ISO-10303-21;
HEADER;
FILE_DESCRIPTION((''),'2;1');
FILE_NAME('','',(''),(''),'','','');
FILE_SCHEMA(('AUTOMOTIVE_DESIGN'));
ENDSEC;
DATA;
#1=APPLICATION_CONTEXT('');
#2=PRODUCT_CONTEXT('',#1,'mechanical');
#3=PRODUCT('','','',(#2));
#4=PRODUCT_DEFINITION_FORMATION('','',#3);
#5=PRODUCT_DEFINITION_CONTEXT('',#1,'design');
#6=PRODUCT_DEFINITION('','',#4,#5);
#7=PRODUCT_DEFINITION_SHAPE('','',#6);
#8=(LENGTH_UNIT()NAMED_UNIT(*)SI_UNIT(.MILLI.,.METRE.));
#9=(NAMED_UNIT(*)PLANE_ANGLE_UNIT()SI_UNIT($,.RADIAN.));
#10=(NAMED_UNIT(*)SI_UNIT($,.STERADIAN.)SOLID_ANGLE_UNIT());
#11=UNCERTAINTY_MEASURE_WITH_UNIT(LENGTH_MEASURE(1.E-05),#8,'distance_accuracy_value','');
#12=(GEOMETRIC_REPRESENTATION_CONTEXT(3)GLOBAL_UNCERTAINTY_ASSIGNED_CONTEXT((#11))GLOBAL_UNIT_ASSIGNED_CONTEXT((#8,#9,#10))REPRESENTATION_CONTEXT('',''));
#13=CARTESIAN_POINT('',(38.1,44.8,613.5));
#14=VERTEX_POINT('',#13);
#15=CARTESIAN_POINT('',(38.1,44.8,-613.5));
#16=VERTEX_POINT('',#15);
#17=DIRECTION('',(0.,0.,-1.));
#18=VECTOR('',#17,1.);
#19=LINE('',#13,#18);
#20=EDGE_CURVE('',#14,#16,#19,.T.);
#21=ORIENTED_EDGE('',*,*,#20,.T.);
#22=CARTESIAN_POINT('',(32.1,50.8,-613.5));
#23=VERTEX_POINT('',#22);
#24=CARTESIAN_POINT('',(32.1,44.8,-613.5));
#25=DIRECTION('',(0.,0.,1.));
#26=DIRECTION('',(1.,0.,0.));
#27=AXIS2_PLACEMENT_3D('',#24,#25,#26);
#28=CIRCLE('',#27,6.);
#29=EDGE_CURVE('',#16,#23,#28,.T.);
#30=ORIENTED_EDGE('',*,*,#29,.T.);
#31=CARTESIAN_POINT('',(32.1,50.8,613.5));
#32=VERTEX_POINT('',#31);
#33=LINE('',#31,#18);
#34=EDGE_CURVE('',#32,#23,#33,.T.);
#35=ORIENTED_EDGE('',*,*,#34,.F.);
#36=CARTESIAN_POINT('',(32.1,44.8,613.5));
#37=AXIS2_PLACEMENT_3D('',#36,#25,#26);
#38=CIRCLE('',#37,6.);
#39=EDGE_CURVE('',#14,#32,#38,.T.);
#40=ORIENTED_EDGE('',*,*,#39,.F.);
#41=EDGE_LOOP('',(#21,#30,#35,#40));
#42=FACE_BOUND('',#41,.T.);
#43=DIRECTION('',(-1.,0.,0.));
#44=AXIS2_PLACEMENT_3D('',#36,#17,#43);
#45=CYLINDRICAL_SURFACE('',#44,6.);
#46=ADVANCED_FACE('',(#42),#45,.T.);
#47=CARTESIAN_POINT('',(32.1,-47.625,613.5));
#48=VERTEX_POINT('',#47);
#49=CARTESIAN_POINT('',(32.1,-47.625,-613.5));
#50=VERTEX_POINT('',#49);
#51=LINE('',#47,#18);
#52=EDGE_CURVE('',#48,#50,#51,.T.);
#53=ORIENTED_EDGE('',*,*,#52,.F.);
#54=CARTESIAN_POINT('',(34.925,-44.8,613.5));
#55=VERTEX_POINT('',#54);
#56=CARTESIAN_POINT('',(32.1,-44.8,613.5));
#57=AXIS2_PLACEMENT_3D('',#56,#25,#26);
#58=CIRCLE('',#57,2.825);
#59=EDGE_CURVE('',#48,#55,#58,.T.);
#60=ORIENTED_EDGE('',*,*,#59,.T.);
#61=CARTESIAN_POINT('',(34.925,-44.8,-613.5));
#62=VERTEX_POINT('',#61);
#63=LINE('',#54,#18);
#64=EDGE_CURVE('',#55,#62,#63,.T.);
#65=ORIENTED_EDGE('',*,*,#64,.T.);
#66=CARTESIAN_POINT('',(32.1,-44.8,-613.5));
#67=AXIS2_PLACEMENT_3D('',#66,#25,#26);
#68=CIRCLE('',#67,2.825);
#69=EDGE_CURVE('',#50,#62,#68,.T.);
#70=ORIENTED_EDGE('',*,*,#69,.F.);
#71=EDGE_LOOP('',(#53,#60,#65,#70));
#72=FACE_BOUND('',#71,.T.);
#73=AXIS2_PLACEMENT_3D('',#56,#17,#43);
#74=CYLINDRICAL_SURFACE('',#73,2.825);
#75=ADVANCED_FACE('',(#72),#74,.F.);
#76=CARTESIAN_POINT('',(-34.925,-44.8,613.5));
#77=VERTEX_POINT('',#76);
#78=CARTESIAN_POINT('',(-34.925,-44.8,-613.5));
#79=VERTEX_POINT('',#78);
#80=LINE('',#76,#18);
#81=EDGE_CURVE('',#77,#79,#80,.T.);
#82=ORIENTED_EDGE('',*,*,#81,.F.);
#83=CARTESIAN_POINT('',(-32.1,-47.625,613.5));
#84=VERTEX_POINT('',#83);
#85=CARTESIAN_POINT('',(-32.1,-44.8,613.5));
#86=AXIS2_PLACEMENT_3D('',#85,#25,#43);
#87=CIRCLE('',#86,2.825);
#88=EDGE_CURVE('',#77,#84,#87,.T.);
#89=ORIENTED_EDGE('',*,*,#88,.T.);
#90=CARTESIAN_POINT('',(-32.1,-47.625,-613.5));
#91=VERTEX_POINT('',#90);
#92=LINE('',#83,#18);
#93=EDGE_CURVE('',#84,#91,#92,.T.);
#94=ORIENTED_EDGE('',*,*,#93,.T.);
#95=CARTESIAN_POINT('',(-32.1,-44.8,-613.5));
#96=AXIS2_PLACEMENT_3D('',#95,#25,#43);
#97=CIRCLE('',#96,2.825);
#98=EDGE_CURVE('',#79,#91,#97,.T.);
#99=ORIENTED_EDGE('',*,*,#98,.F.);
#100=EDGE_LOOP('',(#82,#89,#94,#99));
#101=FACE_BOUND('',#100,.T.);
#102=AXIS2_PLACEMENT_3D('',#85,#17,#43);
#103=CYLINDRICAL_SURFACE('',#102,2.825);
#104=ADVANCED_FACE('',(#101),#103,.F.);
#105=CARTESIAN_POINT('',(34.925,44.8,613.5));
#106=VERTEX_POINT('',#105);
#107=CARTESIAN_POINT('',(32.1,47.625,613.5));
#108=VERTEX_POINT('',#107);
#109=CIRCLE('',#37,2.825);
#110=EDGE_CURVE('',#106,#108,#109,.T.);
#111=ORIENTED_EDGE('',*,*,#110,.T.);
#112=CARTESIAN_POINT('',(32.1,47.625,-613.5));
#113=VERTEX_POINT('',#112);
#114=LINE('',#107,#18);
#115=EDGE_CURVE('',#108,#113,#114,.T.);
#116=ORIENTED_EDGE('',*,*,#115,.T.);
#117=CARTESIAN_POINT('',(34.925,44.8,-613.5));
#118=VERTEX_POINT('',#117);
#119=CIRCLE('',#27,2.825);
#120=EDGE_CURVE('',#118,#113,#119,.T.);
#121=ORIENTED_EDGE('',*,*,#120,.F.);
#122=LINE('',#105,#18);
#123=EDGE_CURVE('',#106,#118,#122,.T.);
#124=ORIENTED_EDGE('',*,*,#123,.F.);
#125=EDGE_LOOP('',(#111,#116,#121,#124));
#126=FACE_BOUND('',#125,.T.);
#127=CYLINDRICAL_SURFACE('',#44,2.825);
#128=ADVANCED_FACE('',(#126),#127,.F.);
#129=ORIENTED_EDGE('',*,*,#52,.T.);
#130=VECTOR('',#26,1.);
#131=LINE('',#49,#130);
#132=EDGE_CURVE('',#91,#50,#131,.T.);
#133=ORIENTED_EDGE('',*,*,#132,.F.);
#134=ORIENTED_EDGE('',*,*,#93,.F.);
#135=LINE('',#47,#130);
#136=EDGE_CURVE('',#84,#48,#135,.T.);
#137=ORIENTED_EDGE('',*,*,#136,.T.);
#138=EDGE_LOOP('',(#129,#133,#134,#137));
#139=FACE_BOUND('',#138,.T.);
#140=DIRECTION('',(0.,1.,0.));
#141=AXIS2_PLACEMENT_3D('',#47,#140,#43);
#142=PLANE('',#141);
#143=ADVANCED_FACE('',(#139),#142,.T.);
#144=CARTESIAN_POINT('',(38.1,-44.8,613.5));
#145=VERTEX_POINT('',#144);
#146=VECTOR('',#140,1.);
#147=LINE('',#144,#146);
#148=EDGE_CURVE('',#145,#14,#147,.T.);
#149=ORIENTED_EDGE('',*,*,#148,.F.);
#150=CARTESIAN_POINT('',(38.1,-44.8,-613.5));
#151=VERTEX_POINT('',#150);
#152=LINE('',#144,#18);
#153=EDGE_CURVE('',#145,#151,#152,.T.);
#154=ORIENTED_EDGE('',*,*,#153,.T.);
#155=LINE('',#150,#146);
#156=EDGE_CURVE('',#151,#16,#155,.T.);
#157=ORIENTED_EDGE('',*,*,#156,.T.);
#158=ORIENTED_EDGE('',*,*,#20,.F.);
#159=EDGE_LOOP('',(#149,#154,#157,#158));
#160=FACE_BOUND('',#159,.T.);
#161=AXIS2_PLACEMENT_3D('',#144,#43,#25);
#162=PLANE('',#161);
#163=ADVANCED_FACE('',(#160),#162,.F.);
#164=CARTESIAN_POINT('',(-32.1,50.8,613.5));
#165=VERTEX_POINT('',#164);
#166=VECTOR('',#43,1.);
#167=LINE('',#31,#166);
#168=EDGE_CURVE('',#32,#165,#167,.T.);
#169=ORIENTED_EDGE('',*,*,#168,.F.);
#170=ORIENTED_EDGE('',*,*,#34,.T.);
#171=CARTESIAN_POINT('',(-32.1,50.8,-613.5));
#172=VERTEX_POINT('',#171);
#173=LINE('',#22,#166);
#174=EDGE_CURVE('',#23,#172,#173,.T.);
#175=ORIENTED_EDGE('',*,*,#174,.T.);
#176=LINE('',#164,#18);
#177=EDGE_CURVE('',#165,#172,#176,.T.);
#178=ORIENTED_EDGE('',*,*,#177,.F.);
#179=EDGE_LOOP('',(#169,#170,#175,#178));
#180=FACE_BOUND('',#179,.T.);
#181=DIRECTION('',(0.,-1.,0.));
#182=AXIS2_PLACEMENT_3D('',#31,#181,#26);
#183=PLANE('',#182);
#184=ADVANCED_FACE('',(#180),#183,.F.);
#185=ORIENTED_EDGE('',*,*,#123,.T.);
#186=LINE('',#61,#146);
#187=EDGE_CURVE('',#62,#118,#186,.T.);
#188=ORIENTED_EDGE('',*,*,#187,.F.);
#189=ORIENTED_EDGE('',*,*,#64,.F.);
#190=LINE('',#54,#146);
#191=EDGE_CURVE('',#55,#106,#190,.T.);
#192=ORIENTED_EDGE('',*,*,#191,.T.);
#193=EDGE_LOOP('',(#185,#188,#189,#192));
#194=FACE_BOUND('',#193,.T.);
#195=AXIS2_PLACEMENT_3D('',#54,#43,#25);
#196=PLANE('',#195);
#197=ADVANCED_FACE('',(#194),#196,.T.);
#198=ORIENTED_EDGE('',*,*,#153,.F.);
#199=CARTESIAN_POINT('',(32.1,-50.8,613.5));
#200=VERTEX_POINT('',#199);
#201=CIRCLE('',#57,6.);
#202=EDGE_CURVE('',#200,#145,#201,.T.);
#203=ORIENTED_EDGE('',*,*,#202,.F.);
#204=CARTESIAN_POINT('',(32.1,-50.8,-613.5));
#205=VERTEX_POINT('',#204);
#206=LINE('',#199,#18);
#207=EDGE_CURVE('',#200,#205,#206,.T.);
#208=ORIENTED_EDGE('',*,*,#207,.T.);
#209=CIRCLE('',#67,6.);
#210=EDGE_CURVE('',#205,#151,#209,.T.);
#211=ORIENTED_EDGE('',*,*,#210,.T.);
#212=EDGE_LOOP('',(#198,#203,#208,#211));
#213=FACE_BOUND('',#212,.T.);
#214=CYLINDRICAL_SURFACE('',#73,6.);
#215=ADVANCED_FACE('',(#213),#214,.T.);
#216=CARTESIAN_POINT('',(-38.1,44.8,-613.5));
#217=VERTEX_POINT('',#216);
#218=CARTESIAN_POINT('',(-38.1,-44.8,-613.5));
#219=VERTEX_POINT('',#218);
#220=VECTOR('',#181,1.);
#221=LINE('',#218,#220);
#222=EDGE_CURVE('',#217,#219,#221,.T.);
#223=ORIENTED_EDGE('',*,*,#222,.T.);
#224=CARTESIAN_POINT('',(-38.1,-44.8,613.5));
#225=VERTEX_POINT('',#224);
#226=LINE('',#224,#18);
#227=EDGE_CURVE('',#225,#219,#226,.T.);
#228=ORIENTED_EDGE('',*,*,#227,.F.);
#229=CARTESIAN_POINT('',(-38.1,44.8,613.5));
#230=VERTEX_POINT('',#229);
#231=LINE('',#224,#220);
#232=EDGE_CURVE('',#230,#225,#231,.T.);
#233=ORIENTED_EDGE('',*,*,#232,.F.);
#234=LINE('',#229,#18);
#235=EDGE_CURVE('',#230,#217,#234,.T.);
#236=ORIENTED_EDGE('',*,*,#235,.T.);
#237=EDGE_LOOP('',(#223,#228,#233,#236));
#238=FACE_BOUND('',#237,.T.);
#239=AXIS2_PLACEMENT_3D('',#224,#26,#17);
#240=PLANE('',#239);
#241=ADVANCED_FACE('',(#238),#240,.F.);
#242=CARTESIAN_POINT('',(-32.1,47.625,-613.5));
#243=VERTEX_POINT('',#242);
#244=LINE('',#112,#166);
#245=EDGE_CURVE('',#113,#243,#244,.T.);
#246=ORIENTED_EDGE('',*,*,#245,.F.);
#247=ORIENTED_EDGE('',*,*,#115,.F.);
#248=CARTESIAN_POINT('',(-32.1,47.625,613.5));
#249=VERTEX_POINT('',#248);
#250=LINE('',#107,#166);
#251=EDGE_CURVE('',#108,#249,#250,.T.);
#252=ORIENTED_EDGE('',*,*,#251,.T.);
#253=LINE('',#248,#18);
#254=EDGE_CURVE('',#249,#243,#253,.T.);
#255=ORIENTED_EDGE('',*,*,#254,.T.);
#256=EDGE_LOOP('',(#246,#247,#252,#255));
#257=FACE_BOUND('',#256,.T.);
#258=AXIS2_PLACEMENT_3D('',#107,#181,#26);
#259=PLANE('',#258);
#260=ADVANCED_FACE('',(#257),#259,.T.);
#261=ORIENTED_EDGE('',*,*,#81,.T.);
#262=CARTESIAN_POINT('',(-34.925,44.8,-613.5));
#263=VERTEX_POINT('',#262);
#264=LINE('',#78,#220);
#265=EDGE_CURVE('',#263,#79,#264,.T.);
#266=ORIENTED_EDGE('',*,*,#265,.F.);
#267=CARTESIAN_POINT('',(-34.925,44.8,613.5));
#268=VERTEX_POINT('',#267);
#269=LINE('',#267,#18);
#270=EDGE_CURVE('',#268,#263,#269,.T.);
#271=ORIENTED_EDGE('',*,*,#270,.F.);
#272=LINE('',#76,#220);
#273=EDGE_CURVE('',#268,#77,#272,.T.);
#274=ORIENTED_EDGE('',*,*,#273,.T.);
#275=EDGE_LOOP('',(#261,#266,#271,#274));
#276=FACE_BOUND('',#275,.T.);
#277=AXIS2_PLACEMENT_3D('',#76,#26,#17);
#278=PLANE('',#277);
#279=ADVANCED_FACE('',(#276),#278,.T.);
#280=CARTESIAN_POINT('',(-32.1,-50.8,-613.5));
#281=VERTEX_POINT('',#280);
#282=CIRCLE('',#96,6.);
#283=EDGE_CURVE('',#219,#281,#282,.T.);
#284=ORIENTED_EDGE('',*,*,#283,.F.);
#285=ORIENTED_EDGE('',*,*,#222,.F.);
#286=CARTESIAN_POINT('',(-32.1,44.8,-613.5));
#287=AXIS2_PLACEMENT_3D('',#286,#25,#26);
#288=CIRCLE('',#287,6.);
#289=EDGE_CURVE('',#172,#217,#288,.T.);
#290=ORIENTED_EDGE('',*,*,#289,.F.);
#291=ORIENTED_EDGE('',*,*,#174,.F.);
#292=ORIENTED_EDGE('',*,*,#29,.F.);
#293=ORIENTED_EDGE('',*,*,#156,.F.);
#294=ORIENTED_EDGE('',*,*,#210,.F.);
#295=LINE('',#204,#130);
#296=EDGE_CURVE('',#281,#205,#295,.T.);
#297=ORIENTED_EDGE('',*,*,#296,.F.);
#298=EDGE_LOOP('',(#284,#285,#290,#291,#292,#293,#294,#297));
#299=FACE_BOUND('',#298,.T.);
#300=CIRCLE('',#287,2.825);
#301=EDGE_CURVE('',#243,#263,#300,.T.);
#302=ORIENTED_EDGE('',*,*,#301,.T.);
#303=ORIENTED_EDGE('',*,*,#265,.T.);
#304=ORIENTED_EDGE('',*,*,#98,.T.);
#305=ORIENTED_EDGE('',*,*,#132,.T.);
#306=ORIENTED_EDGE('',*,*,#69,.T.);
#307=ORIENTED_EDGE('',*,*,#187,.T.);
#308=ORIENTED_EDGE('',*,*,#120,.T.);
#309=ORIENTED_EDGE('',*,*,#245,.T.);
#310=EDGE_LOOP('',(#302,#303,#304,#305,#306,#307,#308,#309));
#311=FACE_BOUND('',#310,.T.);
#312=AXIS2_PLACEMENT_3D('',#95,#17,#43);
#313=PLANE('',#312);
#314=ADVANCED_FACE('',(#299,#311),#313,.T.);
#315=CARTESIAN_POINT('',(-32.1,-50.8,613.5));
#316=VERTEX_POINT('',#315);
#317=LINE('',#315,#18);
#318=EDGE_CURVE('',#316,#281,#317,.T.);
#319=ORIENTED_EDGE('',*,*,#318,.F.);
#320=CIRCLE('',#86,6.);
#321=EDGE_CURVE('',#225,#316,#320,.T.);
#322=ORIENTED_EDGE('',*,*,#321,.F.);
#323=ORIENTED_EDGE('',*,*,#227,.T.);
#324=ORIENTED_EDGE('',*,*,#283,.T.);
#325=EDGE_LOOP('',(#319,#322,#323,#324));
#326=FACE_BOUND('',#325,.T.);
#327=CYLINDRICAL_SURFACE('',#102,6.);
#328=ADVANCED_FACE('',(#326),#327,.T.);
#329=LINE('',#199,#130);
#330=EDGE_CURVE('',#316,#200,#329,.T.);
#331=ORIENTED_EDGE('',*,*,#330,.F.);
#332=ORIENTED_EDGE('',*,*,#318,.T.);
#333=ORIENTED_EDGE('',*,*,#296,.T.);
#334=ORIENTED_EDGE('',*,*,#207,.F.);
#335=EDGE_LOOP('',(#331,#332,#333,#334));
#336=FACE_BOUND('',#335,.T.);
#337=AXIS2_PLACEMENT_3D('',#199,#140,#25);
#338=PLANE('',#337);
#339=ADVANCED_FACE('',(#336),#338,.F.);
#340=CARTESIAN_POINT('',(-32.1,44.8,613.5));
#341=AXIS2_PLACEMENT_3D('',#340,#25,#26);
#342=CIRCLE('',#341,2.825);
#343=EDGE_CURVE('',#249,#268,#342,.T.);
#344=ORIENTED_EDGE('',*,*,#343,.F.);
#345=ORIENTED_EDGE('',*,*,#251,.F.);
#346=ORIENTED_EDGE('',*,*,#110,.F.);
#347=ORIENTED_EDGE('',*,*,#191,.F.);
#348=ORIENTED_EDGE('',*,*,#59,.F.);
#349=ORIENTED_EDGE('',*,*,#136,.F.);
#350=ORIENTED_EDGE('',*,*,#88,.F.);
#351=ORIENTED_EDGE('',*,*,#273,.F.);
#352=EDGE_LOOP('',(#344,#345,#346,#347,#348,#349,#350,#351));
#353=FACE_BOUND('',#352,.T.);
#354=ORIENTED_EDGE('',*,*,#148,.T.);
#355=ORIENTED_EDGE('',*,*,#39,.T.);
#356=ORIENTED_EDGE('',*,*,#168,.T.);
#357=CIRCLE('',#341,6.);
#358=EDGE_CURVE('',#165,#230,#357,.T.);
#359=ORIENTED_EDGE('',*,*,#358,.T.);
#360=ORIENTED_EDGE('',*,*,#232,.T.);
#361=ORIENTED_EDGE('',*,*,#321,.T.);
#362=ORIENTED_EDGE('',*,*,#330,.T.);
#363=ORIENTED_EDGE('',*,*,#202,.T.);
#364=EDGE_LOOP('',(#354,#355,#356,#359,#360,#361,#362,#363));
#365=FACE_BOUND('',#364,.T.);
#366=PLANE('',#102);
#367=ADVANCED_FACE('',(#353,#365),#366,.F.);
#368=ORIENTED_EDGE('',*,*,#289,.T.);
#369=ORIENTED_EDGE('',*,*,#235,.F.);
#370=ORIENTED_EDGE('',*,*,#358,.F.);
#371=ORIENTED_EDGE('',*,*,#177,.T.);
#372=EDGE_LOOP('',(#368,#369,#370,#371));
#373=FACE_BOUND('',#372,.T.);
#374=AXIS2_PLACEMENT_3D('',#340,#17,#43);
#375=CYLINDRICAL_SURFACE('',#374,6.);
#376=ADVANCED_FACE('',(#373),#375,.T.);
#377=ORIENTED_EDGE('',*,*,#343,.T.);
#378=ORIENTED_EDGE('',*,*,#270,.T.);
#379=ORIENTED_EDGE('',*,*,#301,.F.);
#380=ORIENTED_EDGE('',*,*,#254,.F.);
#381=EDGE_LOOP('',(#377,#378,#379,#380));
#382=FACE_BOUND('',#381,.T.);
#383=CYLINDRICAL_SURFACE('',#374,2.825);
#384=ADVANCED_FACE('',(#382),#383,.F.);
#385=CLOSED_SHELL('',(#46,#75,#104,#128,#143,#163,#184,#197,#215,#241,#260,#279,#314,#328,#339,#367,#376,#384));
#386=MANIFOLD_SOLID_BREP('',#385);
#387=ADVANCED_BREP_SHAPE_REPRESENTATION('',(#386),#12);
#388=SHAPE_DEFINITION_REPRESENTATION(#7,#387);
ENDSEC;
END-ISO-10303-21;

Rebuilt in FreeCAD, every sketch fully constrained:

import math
import FreeCAD as App
import Part
import Sketcher

V = App.Vector

doc = App.newDocument("Part")
body = doc.addObject("PartDesign::Body", "Body")

# Sketch on XY plane
sketch1 = body.newObject("Sketcher::SketchObject", "Sketch")
sketch1.AttachmentSupport = (doc.getObject("XY_Plane"), [""])
sketch1.MapMode = "FlatFace"
sketch1.addGeometry([
    Part.LineSegment(V(-32.1, -50.8, 0), V(32.1, -50.8, 0)),  # 0
    Part.ArcOfCircle(Part.Circle(V(32.1, -44.8, 0), V(0, 0, 1), 6), math.radians(-90), math.radians(0)),  # 1
    Part.LineSegment(V(38.1, -44.8, 0), V(38.1, 44.8, 0)),  # 2
    Part.ArcOfCircle(Part.Circle(V(32.1, 44.8, 0), V(0, 0, 1), 6), math.radians(0), math.radians(90)),  # 3
    Part.LineSegment(V(32.1, 50.8, 0), V(-32.1, 50.8, 0)),  # 4
    Part.ArcOfCircle(Part.Circle(V(-32.1, 44.8, 0), V(0, 0, 1), 6), math.radians(90), math.radians(180)),  # 5
    Part.LineSegment(V(-38.1, 44.8, 0), V(-38.1, -44.8, 0)),  # 6
    Part.ArcOfCircle(Part.Circle(V(-32.1, -44.8, 0), V(0, 0, 1), 6), math.radians(180), math.radians(270)),  # 7
    Part.ArcOfCircle(Part.Circle(V(32.1, 44.8, 0), V(0, 0, 1), 2.8), math.radians(0), math.radians(90)),  # 8
    Part.LineSegment(V(34.9, 44.8, 0), V(34.9, -44.8, 0)),  # 9
    Part.ArcOfCircle(Part.Circle(V(32.1, -44.8, 0), V(0, 0, 1), 2.8), math.radians(-90), math.radians(0)),  # 10
    Part.LineSegment(V(32.1, -47.6, 0), V(-32.1, -47.6, 0)),  # 11
    Part.ArcOfCircle(Part.Circle(V(-32.1, -44.8, 0), V(0, 0, 1), 2.8), math.radians(180), math.radians(270)),  # 12
    Part.LineSegment(V(-34.9, -44.8, 0), V(-34.9, 44.8, 0)),  # 13
    Part.ArcOfCircle(Part.Circle(V(-32.1, 44.8, 0), V(0, 0, 1), 2.8), math.radians(90), math.radians(180)),  # 14
    Part.LineSegment(V(-32.1, 47.6, 0), V(32.1, 47.6, 0)),  # 15
], False)
sketch1.addConstraint([
    Sketcher.Constraint("Tangent", 0, 2, 1, 1),
    Sketcher.Constraint("Tangent", 1, 2, 2, 1),
    Sketcher.Constraint("Tangent", 2, 2, 3, 1),
    Sketcher.Constraint("Tangent", 3, 2, 4, 1),
    Sketcher.Constraint("Tangent", 4, 2, 5, 1),
    Sketcher.Constraint("Tangent", 5, 2, 6, 1),
    Sketcher.Constraint("Tangent", 6, 2, 7, 1),
    Sketcher.Constraint("Tangent", 7, 2, 0, 1),
    Sketcher.Constraint("Tangent", 8, 1, 9, 1),
    Sketcher.Constraint("Tangent", 9, 2, 10, 2),
    Sketcher.Constraint("Tangent", 10, 1, 11, 1),
    Sketcher.Constraint("Tangent", 11, 2, 12, 2),
    Sketcher.Constraint("Tangent", 12, 1, 13, 1),
    Sketcher.Constraint("Tangent", 13, 2, 14, 2),
    Sketcher.Constraint("Tangent", 14, 1, 15, 1),
    Sketcher.Constraint("Tangent", 15, 2, 8, 2),
    Sketcher.Constraint("Horizontal", 0),
    Sketcher.Constraint("Vertical", 2),
    Sketcher.Constraint("Horizontal", 4),
    Sketcher.Constraint("Vertical", 6),
    Sketcher.Constraint("Vertical", 9),
    Sketcher.Constraint("Horizontal", 11),
    Sketcher.Constraint("Vertical", 13),
    Sketcher.Constraint("Horizontal", 15),
    Sketcher.Constraint("Coincident", 8, 3, 3, 3),
    Sketcher.Constraint("Coincident", 10, 3, 1, 3),
    Sketcher.Constraint("Coincident", 12, 3, 7, 3),
    Sketcher.Constraint("Equal", 1, 3),
    Sketcher.Constraint("Equal", 3, 5),
    Sketcher.Constraint("Equal", 5, 7),
    Sketcher.Constraint("Equal", 12, 14),
    Sketcher.Constraint("Symmetric", 1, 3, 5, 3, -1, 1),
    Sketcher.Constraint("Radius", 1, 6.0),
    Sketcher.Constraint("DistanceX", 0, 1, 0, 2, 64.2),
    Sketcher.Constraint("DistanceY", 2, 1, 2, 2, 89.6),
    Sketcher.Constraint("Radius", 8, 2.825),
])
pad1 = body.newObject("PartDesign::Pad", "Pad")
pad1.Profile = sketch1
pad1.Length = 1227
pad1.Midplane = True

doc.recompute()
